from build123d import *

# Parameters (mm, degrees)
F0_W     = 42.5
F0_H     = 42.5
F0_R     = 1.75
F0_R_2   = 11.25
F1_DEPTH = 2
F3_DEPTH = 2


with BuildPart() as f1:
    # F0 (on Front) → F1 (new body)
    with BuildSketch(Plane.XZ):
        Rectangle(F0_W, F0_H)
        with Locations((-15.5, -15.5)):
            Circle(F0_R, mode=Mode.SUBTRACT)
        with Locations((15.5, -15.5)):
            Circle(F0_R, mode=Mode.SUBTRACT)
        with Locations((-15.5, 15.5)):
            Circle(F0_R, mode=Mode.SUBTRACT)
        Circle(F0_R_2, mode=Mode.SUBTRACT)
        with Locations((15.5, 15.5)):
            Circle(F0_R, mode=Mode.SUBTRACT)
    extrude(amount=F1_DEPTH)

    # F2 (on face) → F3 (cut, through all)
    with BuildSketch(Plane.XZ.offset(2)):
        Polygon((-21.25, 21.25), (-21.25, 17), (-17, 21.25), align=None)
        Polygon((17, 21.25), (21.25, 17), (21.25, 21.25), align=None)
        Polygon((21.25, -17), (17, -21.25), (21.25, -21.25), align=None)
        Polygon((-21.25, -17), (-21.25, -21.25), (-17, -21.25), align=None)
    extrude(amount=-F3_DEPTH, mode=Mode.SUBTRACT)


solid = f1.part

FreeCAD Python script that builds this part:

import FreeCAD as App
import Part
import Sketcher
from FreeCAD import Vector
Q = App.Units.Quantity


def add_polygon(sketch, points):
    """Adds a closed chain of lines whose ends are joined by coincident constraints."""
    first, n = sketch.GeometryCount, len(points)
    for a, b in zip(points, points[1:] + points[:1]):
        sketch.addGeometry(Part.LineSegment(App.Vector(*a, 0), App.Vector(*b, 0)), False)
    for i in range(n):
        sketch.addConstraint(Sketcher.Constraint("Coincident", first + i, 2, first + (i + 1) % n, 1))

doc = App.newDocument("Part")
body = doc.addObject("PartDesign::Body", "Body")

# Sketch on XZ plane
sketch1 = body.newObject("Sketcher::SketchObject", "Sketch")
sketch1.AttachmentSupport = (doc.getObject("XZ_Plane"), [""])
sketch1.MapMode = "FlatFace"
add_polygon(sketch1, [(-21.25, 21.25), (-21.25, -21.25), (21.25, -21.25), (21.25, 21.25)])  # lines 0-3
sketch1.addGeometry(Part.Circle(Vector(-15.5, -15.5, 0), Vector(0, 0, 1), 1.75), False)  # 4
sketch1.addGeometry(Part.Circle(Vector(15.5, -15.5, 0), Vector(0, 0, 1), 1.75), False)  # 5
sketch1.addGeometry(Part.Circle(Vector(-15.5, 15.5, 0), Vector(0, 0, 1), 1.75), False)  # 6
sketch1.addGeometry(Part.Circle(Vector(0, 0, 0), Vector(0, 0, 1), 11.25), False)  # 7
sketch1.addGeometry(Part.Circle(Vector(15.5, 15.5, 0), Vector(0, 0, 1), 1.75), False)  # 8
sketch1.addConstraint([
    Sketcher.Constraint("Vertical", 0),
    Sketcher.Constraint("Horizontal", 1),
    Sketcher.Constraint("Vertical", 2),
    Sketcher.Constraint("Horizontal", 3),
    Sketcher.Constraint("Coincident", 7, 3, -1, 1),
    Sketcher.Constraint("Equal", 4, 5),
    Sketcher.Constraint("Equal", 5, 6),
    Sketcher.Constraint("Equal", 6, 8),
    Sketcher.Constraint("Symmetric", 5, 3, 6, 3, -1, 1),
    Sketcher.Constraint("Symmetric", 4, 3, 8, 3, -1, 1),
    Sketcher.Constraint("Symmetric", 0, 2, 2, 2, -1, 1),
    Sketcher.Constraint("Symmetric", 4, 3, 5, 3, -2),
    Sketcher.Constraint("Equal", 3, 0),
    Sketcher.Constraint("Diameter", 4, Q("3.5 mm")),
    Sketcher.Constraint("Diameter", 7, Q("22.5 mm")),
    Sketcher.Constraint("DistanceX", 1, 1, 1, 2, Q("42.5 mm")),
    Sketcher.Constraint("DistanceX", 4, 3, 5, 3, Q("31 mm")),
    Sketcher.Constraint("DistanceY", 4, 3, 6, 3, Q("31 mm")),
])
pad1 = body.newObject("PartDesign::Pad", "Pad")
pad1.Profile = sketch1
pad1.Length = 2

# Sketch on XZ plane
sketch2 = body.newObject("Sketcher::SketchObject", "Sketch001")
sketch2.AttachmentSupport = (doc.getObject("XZ_Plane"), [""])
sketch2.MapMode = "FlatFace"
sketch2.AttachmentOffset = App.Placement(Vector(0, 0, 2), App.Rotation())
add_polygon(sketch2, [(-21.25, 21.25), (-21.25, 17), (-17, 21.25)])  # lines 0-2
add_polygon(sketch2, [(17, 21.25), (21.25, 17), (21.25, 21.25)])  # lines 3-5
add_polygon(sketch2, [(21.25, -17), (17, -21.25), (21.25, -21.25)])  # lines 6-8
add_polygon(sketch2, [(-21.25, -17), (-21.25, -21.25), (-17, -21.25)])  # lines 9-11
sketch2.addConstraint([
    Sketcher.Constraint("Vertical", 0),
    Sketcher.Constraint("Horizontal", 2),
    Sketcher.Constraint("Vertical", 4),
    Sketcher.Constraint("Horizontal", 5),
    Sketcher.Constraint("Horizontal", 7),
    Sketcher.Constraint("Vertical", 8),
    Sketcher.Constraint("Vertical", 9),
    Sketcher.Constraint("Horizontal", 10),
    Sketcher.Constraint("Symmetric", 1, 2, 6, 2, -1, 1),
    Sketcher.Constraint("Symmetric", 0, 2, 8, 2, -1, 1),
    Sketcher.Constraint("Symmetric", 4, 2, 9, 2, -1, 1),
    Sketcher.Constraint("Symmetric", 0, 2, 3, 2, -2),
    Sketcher.Constraint("Symmetric", 1, 2, 5, 2, -2),
    Sketcher.Constraint("Perpendicular", 1, 3),
    Sketcher.Constraint("Perpendicular", 6, 11),
    Sketcher.Constraint("Horizontal", 8, 2, 11, 2),
    Sketcher.Constraint("DistanceY", -1, 1, 0, 2, Q("17 mm")),
    Sketcher.Constraint("DistanceX", 1, 2, -1, 1, Q("17 mm")),
    Sketcher.Constraint("DistanceX", 2, 2, 2, 1, Q("4.25 mm")),
])
pocket1 = body.newObject("PartDesign::Pocket", "Pocket")
pocket1.Profile = sketch2
pocket1.Type = "ThroughAll"

doc.recompute()
